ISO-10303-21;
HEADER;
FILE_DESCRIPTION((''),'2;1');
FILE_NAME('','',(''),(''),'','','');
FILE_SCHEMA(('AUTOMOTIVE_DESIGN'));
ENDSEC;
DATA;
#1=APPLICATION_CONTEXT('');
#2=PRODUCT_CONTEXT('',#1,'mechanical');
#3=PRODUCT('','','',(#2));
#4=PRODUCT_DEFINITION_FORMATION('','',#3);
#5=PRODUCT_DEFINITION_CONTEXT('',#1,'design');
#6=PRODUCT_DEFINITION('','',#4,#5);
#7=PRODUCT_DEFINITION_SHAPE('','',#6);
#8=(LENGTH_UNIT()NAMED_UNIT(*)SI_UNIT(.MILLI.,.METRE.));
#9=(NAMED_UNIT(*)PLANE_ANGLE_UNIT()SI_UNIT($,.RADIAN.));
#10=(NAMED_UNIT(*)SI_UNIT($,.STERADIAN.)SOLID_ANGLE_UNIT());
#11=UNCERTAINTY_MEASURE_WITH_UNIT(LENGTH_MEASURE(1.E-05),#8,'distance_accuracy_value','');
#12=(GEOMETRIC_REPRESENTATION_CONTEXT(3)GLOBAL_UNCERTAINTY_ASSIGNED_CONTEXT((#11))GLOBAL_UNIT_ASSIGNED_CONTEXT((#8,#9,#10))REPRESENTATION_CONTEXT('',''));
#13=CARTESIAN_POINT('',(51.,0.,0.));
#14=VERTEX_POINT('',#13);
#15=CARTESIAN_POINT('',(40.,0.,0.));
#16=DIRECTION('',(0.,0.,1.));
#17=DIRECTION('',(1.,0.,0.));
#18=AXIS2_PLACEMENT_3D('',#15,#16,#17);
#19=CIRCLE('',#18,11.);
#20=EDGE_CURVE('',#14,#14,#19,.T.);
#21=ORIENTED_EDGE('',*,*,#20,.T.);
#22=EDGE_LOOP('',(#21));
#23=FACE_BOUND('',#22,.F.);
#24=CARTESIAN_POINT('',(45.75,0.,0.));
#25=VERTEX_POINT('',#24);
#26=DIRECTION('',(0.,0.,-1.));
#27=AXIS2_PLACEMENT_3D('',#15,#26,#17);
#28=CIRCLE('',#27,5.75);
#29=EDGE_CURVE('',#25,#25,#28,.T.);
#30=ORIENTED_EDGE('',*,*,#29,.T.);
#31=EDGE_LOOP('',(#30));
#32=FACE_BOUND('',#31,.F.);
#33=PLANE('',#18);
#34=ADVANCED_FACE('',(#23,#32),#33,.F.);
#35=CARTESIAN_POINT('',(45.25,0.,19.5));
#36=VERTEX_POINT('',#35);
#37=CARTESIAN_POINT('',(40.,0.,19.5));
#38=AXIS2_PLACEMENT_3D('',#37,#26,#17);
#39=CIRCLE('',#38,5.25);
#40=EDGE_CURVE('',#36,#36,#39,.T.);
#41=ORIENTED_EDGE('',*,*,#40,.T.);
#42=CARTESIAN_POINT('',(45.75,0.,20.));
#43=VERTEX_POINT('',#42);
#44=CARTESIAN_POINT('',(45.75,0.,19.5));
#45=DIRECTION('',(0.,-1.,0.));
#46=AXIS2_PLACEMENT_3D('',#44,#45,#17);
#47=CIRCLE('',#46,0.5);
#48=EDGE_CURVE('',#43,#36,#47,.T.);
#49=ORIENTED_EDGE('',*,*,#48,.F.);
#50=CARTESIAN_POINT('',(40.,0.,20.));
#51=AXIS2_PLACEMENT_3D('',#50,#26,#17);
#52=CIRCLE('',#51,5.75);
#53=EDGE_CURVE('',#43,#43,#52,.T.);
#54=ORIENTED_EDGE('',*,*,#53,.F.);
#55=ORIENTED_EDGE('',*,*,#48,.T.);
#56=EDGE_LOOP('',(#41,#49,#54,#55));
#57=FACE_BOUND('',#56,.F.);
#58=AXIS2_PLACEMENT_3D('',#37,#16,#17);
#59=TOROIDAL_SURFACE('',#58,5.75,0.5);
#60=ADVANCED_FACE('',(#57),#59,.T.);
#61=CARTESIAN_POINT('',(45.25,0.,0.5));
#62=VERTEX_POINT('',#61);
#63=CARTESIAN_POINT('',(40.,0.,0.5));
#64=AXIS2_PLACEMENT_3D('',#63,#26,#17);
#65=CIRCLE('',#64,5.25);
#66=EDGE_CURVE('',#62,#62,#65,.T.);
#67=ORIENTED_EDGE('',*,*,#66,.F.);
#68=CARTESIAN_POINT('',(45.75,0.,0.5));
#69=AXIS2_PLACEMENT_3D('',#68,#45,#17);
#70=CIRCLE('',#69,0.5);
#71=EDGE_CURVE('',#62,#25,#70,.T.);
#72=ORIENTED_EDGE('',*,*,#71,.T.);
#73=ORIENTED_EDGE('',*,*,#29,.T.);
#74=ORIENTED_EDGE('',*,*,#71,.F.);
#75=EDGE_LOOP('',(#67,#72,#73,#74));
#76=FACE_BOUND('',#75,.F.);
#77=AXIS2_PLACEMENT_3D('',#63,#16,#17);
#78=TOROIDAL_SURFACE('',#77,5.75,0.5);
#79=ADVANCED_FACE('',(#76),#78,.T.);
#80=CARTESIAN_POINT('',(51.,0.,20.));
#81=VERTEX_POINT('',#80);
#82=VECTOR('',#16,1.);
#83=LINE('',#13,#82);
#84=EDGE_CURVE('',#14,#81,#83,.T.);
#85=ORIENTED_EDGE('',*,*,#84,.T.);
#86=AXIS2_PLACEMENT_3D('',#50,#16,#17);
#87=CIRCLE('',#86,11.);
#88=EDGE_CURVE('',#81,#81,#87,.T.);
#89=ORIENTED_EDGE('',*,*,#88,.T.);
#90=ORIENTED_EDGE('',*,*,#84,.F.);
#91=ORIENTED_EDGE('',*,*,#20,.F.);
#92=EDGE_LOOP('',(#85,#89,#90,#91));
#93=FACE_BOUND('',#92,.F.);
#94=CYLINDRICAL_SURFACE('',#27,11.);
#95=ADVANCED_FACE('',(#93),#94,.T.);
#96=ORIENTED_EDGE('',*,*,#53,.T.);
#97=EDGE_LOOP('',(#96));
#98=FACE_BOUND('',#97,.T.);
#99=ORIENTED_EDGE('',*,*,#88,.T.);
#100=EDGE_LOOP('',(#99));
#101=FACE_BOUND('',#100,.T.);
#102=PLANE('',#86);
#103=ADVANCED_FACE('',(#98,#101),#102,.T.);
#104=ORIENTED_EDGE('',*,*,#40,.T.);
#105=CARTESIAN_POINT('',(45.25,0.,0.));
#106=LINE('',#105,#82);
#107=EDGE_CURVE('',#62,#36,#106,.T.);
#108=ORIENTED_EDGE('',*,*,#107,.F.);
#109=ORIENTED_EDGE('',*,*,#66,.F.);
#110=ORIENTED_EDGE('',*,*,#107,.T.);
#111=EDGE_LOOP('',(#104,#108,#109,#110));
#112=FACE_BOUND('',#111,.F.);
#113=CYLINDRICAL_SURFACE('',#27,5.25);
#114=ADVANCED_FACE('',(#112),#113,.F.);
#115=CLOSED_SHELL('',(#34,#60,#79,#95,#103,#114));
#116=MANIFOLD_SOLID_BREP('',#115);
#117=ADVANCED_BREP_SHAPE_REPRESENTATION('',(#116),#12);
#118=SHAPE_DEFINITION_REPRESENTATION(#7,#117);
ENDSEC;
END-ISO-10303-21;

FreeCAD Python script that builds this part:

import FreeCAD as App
import Part
import Sketcher

V = App.Vector


def edges_at(feature, points):
    """Names of the edges that pass closest to the given points."""
    edges = feature.Shape.Edges
    near = lambda p: min(range(len(edges)), key=lambda i: edges[i].distToShape(Part.Vertex(*p))[0])
    return sorted({f"Edge{near(p) + 1}" for p in points})

doc = App.newDocument("Part")
params = doc.addObject("Spreadsheet::Sheet", "Params")
for row, (alias, value) in enumerate([
    ("sketch1_diameter", "22 mm"),
    ("pad1_length", "20 mm"),
    ("sketch2_diameter", "10.5 mm"),
    ("pocket1_length", "20 mm"),
    ("fillet_radius", "0.5 mm"),
    ("fillet2_radius", "0.5 mm"),
], start=1):
    params.set(f"A{row}", alias)
    params.set(f"B{row}", "=" + value)
    params.setAlias(f"B{row}", alias)

body = doc.addObject("PartDesign::Body", "Body")

sketch1 = body.newObject("Sketcher::SketchObject", "Sketch")
sketch1.AttachmentSupport = (doc.getObject("XY_Plane"), [""])
sketch1.MapMode = "FlatFace"
sketch1.addGeometry(Part.Circle(V(40, 0, 0), V(0, 0, 1), 11), False)
sketch1.addConstraint([
    Sketcher.Constraint("PointOnObject", 0, 3, -1),
    Sketcher.Constraint("Diameter", 0, 22.0),
    Sketcher.Constraint("DistanceX", -1, 1, 0, 3, 40.0),
])
sketch1.setExpression("Constraints[1]", "Params.sketch1_diameter")
pad1 = body.newObject("PartDesign::Pad", "Pad")
pad1.Profile = sketch1
pad1.setExpression("Length", "Params.pad1_length")

sketch2 = body.newObject("Sketcher::SketchObject", "Sketch001")
sketch2.AttachmentSupport = (doc.getObject("XY_Plane"), [""])
sketch2.MapMode = "FlatFace"
sketch2.addGeometry(Part.Circle(V(40, 0, 0), V(0, 0, 1), 5), False)
sketch2.addConstraint([
    Sketcher.Constraint("PointOnObject", 0, 3, -1),
    Sketcher.Constraint("Diameter", 0, 10.5),
    Sketcher.Constraint("DistanceX", -1, 1, 0, 3, 40.0),
])
sketch2.setExpression("Constraints[1]", "Params.sketch2_diameter")
pocket1 = body.newObject("PartDesign::Pocket", "Pocket")
pocket1.Profile = sketch2
pocket1.setExpression("Length", "Params.pocket1_length")
pocket1.Reversed = True
doc.recompute()

fillet = body.newObject("PartDesign::Fillet", "Fillet")
fillet.Base = (pocket1, edges_at(pocket1, [(34.75, 0, 20)]))
fillet.setExpression("Radius", "Params.fillet_radius")
doc.recompute()

fillet2 = body.newObject("PartDesign::Fillet", "Fillet001")
fillet2.Base = (fillet, edges_at(fillet, [(34.75, 0, 0)]))
fillet2.setExpression("Radius", "Params.fillet2_radius")

doc.recompute()
